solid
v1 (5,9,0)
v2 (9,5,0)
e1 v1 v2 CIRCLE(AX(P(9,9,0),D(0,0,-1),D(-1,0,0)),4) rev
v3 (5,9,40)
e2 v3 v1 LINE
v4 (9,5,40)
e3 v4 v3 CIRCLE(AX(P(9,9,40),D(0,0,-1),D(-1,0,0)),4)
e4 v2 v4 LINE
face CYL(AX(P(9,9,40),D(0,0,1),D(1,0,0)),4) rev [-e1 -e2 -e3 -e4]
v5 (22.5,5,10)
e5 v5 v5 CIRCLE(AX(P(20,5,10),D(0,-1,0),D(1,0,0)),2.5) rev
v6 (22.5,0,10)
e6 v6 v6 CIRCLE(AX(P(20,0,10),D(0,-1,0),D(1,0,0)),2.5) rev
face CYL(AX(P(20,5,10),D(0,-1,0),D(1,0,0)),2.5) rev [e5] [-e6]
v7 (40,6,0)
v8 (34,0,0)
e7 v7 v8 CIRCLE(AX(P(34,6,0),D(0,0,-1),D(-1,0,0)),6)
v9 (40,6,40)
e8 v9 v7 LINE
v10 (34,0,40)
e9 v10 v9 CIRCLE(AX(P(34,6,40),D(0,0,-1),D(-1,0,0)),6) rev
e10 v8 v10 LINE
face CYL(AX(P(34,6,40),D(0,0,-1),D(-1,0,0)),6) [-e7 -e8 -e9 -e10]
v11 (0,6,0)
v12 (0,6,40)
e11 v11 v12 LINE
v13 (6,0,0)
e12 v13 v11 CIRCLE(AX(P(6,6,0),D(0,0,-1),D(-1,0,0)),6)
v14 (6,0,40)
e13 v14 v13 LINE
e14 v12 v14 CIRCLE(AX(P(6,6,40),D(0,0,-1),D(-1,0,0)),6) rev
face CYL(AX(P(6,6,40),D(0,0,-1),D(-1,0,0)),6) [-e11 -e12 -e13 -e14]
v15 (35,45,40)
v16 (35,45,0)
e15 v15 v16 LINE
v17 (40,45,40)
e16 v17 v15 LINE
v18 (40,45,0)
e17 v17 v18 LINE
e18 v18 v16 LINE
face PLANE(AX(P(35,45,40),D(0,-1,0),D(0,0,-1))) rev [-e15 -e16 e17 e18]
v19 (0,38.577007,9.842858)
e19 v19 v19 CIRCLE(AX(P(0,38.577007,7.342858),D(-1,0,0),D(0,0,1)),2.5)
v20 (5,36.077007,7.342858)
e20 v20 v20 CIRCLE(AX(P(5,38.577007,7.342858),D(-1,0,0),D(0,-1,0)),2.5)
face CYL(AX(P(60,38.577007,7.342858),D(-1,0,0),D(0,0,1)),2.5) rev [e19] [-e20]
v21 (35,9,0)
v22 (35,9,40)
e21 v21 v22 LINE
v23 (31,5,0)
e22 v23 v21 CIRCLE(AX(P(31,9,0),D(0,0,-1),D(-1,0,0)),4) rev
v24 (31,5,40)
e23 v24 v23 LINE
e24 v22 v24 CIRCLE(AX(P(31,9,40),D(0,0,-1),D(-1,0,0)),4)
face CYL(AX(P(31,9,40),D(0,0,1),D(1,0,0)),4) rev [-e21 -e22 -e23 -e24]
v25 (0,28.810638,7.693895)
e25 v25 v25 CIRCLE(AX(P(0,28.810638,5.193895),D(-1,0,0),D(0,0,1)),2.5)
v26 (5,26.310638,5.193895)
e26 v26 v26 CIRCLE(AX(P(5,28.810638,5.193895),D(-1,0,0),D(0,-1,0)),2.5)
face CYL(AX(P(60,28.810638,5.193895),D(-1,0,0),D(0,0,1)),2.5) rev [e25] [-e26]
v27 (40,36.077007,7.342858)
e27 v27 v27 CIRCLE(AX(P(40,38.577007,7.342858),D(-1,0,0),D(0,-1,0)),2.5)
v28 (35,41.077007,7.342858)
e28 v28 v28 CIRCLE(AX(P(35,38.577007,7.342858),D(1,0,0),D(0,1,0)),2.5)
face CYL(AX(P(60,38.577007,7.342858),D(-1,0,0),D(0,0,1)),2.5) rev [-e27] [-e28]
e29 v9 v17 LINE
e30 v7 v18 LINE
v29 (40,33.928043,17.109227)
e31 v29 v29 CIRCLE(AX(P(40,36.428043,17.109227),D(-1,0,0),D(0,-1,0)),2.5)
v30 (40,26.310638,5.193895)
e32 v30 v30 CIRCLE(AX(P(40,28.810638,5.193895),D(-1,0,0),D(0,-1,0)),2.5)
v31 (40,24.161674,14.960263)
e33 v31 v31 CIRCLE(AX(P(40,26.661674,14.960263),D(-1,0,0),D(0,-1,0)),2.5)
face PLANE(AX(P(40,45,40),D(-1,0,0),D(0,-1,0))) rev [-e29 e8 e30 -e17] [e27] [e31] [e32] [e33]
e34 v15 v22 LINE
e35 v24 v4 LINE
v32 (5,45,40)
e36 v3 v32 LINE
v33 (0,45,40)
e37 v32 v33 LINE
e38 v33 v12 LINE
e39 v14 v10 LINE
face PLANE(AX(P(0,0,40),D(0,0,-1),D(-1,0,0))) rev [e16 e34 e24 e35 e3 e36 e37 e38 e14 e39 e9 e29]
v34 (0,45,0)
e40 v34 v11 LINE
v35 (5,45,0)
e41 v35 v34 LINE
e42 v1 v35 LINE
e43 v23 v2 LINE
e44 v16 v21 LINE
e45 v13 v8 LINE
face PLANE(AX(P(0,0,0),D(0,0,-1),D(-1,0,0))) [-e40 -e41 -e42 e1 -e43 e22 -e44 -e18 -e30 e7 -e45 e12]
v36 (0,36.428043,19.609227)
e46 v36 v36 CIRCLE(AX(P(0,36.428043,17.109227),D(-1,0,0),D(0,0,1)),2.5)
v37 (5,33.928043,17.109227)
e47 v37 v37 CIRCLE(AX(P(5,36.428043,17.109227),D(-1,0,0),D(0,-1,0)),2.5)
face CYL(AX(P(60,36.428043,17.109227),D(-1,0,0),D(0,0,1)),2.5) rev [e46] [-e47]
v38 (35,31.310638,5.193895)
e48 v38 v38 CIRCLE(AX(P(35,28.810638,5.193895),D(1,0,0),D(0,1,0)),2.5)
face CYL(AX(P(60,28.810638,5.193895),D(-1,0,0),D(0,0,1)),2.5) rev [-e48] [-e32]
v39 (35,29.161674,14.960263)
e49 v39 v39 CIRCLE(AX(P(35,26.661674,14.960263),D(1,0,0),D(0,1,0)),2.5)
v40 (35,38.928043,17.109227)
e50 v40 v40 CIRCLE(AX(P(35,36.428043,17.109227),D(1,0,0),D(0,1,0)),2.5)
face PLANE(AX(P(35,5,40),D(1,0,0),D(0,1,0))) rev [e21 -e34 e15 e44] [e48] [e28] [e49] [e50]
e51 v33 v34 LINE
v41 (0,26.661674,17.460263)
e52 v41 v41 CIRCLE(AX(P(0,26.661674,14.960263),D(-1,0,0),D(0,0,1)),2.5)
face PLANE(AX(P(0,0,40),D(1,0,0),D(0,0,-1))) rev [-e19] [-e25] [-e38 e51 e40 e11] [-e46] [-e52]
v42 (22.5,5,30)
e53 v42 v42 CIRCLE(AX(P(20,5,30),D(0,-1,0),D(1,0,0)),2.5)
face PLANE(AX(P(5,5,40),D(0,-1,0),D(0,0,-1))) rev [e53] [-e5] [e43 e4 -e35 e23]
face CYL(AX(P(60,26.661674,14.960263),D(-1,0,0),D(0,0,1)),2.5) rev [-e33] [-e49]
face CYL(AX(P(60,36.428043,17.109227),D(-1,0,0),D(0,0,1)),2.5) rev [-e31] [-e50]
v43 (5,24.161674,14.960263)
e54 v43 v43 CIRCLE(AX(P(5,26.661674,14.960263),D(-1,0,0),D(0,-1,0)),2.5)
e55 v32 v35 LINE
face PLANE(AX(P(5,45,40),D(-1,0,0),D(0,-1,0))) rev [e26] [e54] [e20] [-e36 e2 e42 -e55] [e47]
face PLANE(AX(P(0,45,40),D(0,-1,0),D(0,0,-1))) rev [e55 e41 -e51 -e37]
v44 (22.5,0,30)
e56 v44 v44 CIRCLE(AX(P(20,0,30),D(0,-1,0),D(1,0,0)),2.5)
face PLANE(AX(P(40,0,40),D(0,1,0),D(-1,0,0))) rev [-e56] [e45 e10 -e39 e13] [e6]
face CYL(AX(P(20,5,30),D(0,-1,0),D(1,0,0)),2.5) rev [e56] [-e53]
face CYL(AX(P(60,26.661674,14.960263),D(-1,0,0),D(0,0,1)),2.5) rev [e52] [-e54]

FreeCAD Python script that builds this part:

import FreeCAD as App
import Part
import Sketcher
from FreeCAD import Vector
Q = App.Units.Quantity


def edges_at(feature, points):
    """Names of the edges that pass closest to the given points."""
    edges = feature.Shape.Edges
    near = lambda p: min(range(len(edges)), key=lambda i: edges[i].distToShape(Part.Vertex(*p))[0])
    return sorted({f"Edge{near(p) + 1}" for p in points})

doc = App.newDocument("Part")
body = doc.addObject("PartDesign::Body", "Body")

# Sketch on XY plane
sketch1 = body.newObject("Sketcher::SketchObject", "Sketch")
sketch1.AttachmentSupport = (doc.getObject("XY_Plane"), [""])
sketch1.MapMode = "FlatFace"
sketch1.addGeometry(Part.LineSegment(Vector(0, 45, 0), Vector(0, 0, 0)), False)
sketch1.addGeometry(Part.LineSegment(Vector(0, 0, 0), Vector(40, 0, 0)), False)
sketch1.addGeometry(Part.LineSegment(Vector(40, 0, 0), Vector(40, 45, 0)), False)
sketch1.addGeometry(Part.LineSegment(Vector(40, 45, 0), Vector(35, 45, 0)), False)
sketch1.addGeometry(Part.LineSegment(Vector(35, 45, 0), Vector(35, 5, 0)), False)
sketch1.addGeometry(Part.LineSegment(Vector(35, 5, 0), Vector(5, 5, 0)), False)
sketch1.addGeometry(Part.LineSegment(Vector(5, 5, 0), Vector(5, 45, 0)), False)
sketch1.addGeometry(Part.LineSegment(Vector(5, 45, 0), Vector(0, 45, 0)), False)
sketch1.addConstraint(Sketcher.Constraint("Coincident", 0, 2, 1, 1))
sketch1.addConstraint(Sketcher.Constraint("Coincident", 1, 2, 2, 1))
sketch1.addConstraint(Sketcher.Constraint("Coincident", 2, 2, 3, 1))
sketch1.addConstraint(Sketcher.Constraint("Coincident", 3, 2, 4, 1))
sketch1.addConstraint(Sketcher.Constraint("Coincident", 4, 2, 5, 1))
sketch1.addConstraint(Sketcher.Constraint("Coincident", 5, 2, 6, 1))
sketch1.addConstraint(Sketcher.Constraint("Coincident", 6, 2, 7, 1))
sketch1.addConstraint(Sketcher.Constraint("Coincident", 7, 2, 0, 1))
sketch1.addConstraint(Sketcher.Constraint("Vertical", 0))
sketch1.addConstraint(Sketcher.Constraint("Horizontal", 1))
sketch1.addConstraint(Sketcher.Constraint("Vertical", 2))
sketch1.addConstraint(Sketcher.Constraint("Horizontal", 3))
sketch1.addConstraint(Sketcher.Constraint("Vertical", 4))
sketch1.addConstraint(Sketcher.Constraint("Horizontal", 5))
sketch1.addConstraint(Sketcher.Constraint("Vertical", 6))
sketch1.addConstraint(Sketcher.Constraint("Horizontal", 7))
sketch1.addConstraint(Sketcher.Constraint("Coincident", 0, 2, -1, 1))
sketch1.addConstraint(Sketcher.Constraint("Horizontal", 3, 2, 6, 2))
sketch1.addConstraint(Sketcher.Constraint("Equal", 3, 7))
sketch1.addConstraint(Sketcher.Constraint("Equal", 1, 4))
sketch1.addConstraint(Sketcher.Constraint("DistanceX", 1, 1, 1, 2, Q("40 mm")))
sketch1.addConstraint(Sketcher.Constraint("DistanceX", 3, 2, 3, 1, Q("5 mm")))
sketch1.addConstraint(Sketcher.Constraint("DistanceY", 0, 2, 0, 1, Q("45 mm")))
pad1 = body.newObject("PartDesign::Pad", "Pad")
pad1.Profile = sketch1
pad1.Length = 40
doc.recompute()

fillet = body.newObject("PartDesign::Fillet", "Fillet")
fillet.Base = (pad1, edges_at(pad1, [(0, 0, 20), (40, 0, 20)]))
fillet.Radius = 6

# Sketch on YZ plane
sketch2 = body.newObject("Sketcher::SketchObject", "Sketch001")
sketch2.AttachmentSupport = (doc.getObject("YZ_Plane"), [""])
sketch2.MapMode = "FlatFace"
sketch2.addGeometry(Part.Circle(Vector(38.6, 7.3, 0), Vector(0, 0, 1), 2.5), False)
sketch2.addGeometry(Part.Circle(Vector(36.4, 17.1, 0), Vector(0, 0, 1), 2.5), False)
sketch2.addGeometry(Part.Circle(Vector(26.7, 15, 0), Vector(0, 0, 1), 2.5), False)
sketch2.addGeometry(Part.Circle(Vector(28.8, 5.2, 0), Vector(0, 0, 1), 2.5), False)
sketch2.addConstraint(Sketcher.Constraint("Equal", 0, 1))
sketch2.addConstraint(Sketcher.Constraint("Equal", 1, 2))
sketch2.addConstraint(Sketcher.Constraint("Equal", 2, 3))
sketch2.addConstraint(Sketcher.Constraint("Diameter", 0, Q("5 mm")))
sketch2.addConstraint(Sketcher.Constraint("DistanceY", -1, 1, 0, 3, Q("7.342858 mm")))
sketch2.addConstraint(Sketcher.Constraint("DistanceY", 0, 3, 1, 3, Q("9.766369 mm")))
sketch2.addConstraint(Sketcher.Constraint("DistanceX", 2, 3, 1, 3, Q("9.766369 mm")))
sketch2.addConstraint(Sketcher.Constraint("DistanceY", 3, 3, 2, 3, Q("9.766369 mm")))
sketch2.addConstraint(Sketcher.Constraint("DistanceX", 3, 3, 0, 3, Q("9.766369 mm")))
sketch2.addConstraint(Sketcher.Constraint("DistanceX", -1, 1, 0, 3, Q("38.577007 mm")))
sketch2.addConstraint(Sketcher.Constraint("DistanceX", -1, 1, 1, 3, Q("36.428043 mm")))
sketch2.addConstraint(Sketcher.Constraint("DistanceY", -1, 1, 2, 3, Q("14.960263 mm")))
pocket1 = body.newObject("PartDesign::Pocket", "Pocket")
pocket1.Profile = sketch2
pocket1.Length = 60
pocket1.Reversed = True
doc.recompute()

fillet2 = body.newObject("PartDesign::Fillet", "Fillet001")
fillet2.Base = (pocket1, edges_at(pocket1, [(5, 5, 20), (35, 5, 20)]))
fillet2.Radius = 4

# Sketch on XZ plane
sketch3 = body.newObject("Sketcher::SketchObject", "Sketch002")
sketch3.AttachmentSupport = (doc.getObject("XZ_Plane"), [""])
sketch3.MapMode = "FlatFace"
sketch3.addGeometry(Part.Circle(Vector(20, 30, 0), Vector(0, 0, 1), 2.5), False)
sketch3.addGeometry(Part.Circle(Vector(20, 10, 0), Vector(0, 0, 1), 2.5), False)
sketch3.addConstraint(Sketcher.Constraint("Equal", 0, 1))
sketch3.addConstraint(Sketcher.Constraint("Vertical", 0, 3, 1, 3))
sketch3.addConstraint(Sketcher.Constraint("Diameter", 0, Q("5 mm")))
sketch3.addConstraint(Sketcher.Constraint("DistanceX", -1, 1, 0, 3, Q("20 mm")))
sketch3.addConstraint(Sketcher.Constraint("DistanceY", -1, 1, 0, 3, Q("30 mm")))
sketch3.addConstraint(Sketcher.Constraint("DistanceY", -1, 1, 1, 3, Q("10 mm")))
pocket2 = body.newObject("PartDesign::Pocket", "Pocket001")
pocket2.Profile = sketch3
pocket2.Length = 5

doc.recompute()
